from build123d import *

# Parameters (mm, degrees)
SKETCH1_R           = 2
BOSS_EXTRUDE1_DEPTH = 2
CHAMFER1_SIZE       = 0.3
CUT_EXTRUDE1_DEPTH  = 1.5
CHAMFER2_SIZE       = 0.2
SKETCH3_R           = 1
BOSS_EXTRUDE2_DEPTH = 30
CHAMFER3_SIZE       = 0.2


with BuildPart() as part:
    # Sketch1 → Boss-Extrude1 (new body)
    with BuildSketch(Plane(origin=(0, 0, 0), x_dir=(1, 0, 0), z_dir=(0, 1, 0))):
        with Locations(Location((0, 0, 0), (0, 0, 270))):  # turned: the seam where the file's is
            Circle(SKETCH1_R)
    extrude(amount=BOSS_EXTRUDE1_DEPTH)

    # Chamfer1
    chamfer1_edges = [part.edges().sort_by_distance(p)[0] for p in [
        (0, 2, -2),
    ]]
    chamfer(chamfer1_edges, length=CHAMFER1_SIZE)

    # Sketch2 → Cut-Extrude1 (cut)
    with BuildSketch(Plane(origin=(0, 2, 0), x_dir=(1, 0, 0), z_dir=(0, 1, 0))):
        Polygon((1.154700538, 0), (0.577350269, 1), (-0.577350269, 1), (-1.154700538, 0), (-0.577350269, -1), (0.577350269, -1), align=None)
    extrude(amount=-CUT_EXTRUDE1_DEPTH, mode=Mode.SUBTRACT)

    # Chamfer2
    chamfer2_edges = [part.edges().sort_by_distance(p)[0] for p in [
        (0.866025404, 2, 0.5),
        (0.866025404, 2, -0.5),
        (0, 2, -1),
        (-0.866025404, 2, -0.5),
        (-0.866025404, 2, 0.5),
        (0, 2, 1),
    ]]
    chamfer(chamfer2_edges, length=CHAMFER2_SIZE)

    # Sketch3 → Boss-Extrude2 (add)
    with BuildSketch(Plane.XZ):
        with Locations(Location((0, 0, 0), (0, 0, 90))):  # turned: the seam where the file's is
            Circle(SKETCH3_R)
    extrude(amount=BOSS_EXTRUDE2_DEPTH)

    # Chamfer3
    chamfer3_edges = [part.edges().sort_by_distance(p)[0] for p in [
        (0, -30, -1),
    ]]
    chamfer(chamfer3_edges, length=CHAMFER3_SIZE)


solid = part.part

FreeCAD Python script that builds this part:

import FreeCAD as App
import Part
import Sketcher
Q = App.Units.Quantity


def edges_at(feature, points):
    """Names of the edges that pass closest to the given points."""
    edges = feature.Shape.Edges
    near = lambda p: min(range(len(edges)), key=lambda i: edges[i].distToShape(Part.Vertex(*p))[0])
    return sorted({f"Edge{near(p) + 1}" for p in points})


def add_polygon(sketch, points):
    """Adds a closed chain of lines whose ends are joined by coincident constraints."""
    first, n = sketch.GeometryCount, len(points)
    for a, b in zip(points, points[1:] + points[:1]):
        sketch.addGeometry(Part.LineSegment(App.Vector(*a, 0), App.Vector(*b, 0)), False)
    for i in range(n):
        sketch.addConstraint(Sketcher.Constraint("Coincident", first + i, 2, first + (i + 1) % n, 1))

doc = App.newDocument("Part")
body = doc.addObject("PartDesign::Body", "Body")

# Sketch on XZ plane
sketch1 = doc.addObject("Sketcher::SketchObject", "Sketch")
body.addObject(sketch1)
sketch1.AttachmentSupport = (doc.XZ_Plane, [""])
sketch1.MapMode = "FlatFace"
sketch1.addGeometry(Part.Circle(App.Vector(0, 0, 0), App.Vector(0, 0, 1), 2), False)
sketch1.addConstraint([
    Sketcher.Constraint("Coincident", 0, 3, -1, 1),
    Sketcher.Constraint("Diameter", 0, Q("4 mm")),
])
pad1 = doc.addObject("PartDesign::Pad", "Pad")
body.addObject(pad1)
pad1.Profile = sketch1
pad1.Length = 2
pad1.Reversed = True
doc.recompute()

chamfer = doc.addObject("PartDesign::Chamfer", "Chamfer")
body.addObject(chamfer)
chamfer.Base = (pad1, edges_at(pad1, [(0, 2, -2)]))
chamfer.Size = 0.3

# Sketch on XZ plane
sketch2 = doc.addObject("Sketcher::SketchObject", "Sketch001")
body.addObject(sketch2)
sketch2.AttachmentSupport = (doc.XZ_Plane, [""])
sketch2.MapMode = "FlatFace"
sketch2.AttachmentOffset = App.Placement(App.Vector(0, 0, -2), App.Rotation())
add_polygon(sketch2, [(1.2, 0), (0.6, -1), (-0.6, -1), (-1.2, 0), (-0.6, 1), (0.6, 1)])  # lines 0-5
sketch2.addConstraint([
    Sketcher.Constraint("Horizontal", 1),
    Sketcher.Constraint("Horizontal", 4),
    Sketcher.Constraint("Symmetric", 0, 2, 3, 2, -1, 1),
    Sketcher.Constraint("Symmetric", 2, 2, 5, 2, -1, 1),
    Sketcher.Constraint("PointOnObject", 2, 2, -1),
    Sketcher.Constraint("Parallel", 2, 5),
    Sketcher.Constraint("Vertical", 1, 2, 3, 2),
    Sketcher.Constraint("Angle", 0, Q("-120 deg")),
    Sketcher.Constraint("DistanceY", 0, 2, -1, 1, Q("1 mm")),
    Sketcher.Constraint("DistanceX", 1, 2, 1, 1, Q("1.154701 mm")),
])
pocket1 = doc.addObject("PartDesign::Pocket", "Pocket")
body.addObject(pocket1)
pocket1.Profile = sketch2
pocket1.Length = 1.5
pocket1.Reversed = True
doc.recompute()

chamfer2 = doc.addObject("PartDesign::Chamfer", "Chamfer001")
body.addObject(chamfer2)
chamfer2.Base = (pocket1, edges_at(pocket1, [
    (0.866, 2, 0.5),
    (0.866, 2, -0.5),
    (0, 2, -1),
    (-0.866, 2, -0.5),
    (-0.866, 2, 0.5),
    (0, 2, 1),
]))
chamfer2.Size = 0.2

# Sketch on XZ plane
sketch3 = doc.addObject("Sketcher::SketchObject", "Sketch002")
body.addObject(sketch3)
sketch3.AttachmentSupport = (doc.XZ_Plane, [""])
sketch3.MapMode = "FlatFace"
sketch3.addGeometry(Part.Circle(App.Vector(0, 0, 0), App.Vector(0, 0, 1), 1), False)
sketch3.addConstraint([
    Sketcher.Constraint("Coincident", 0, 3, -1, 1),
    Sketcher.Constraint("Diameter", 0, Q("2 mm")),
])
pad2 = doc.addObject("PartDesign::Pad", "Pad001")
body.addObject(pad2)
pad2.Profile = sketch3
pad2.Length = 30
doc.recompute()

chamfer3 = doc.addObject("PartDesign::Chamfer", "Chamfer002")
body.addObject(chamfer3)
chamfer3.Base = (pad2, edges_at(pad2, [(0, -30, -1)]))
chamfer3.Size = 0.2

doc.recompute()
